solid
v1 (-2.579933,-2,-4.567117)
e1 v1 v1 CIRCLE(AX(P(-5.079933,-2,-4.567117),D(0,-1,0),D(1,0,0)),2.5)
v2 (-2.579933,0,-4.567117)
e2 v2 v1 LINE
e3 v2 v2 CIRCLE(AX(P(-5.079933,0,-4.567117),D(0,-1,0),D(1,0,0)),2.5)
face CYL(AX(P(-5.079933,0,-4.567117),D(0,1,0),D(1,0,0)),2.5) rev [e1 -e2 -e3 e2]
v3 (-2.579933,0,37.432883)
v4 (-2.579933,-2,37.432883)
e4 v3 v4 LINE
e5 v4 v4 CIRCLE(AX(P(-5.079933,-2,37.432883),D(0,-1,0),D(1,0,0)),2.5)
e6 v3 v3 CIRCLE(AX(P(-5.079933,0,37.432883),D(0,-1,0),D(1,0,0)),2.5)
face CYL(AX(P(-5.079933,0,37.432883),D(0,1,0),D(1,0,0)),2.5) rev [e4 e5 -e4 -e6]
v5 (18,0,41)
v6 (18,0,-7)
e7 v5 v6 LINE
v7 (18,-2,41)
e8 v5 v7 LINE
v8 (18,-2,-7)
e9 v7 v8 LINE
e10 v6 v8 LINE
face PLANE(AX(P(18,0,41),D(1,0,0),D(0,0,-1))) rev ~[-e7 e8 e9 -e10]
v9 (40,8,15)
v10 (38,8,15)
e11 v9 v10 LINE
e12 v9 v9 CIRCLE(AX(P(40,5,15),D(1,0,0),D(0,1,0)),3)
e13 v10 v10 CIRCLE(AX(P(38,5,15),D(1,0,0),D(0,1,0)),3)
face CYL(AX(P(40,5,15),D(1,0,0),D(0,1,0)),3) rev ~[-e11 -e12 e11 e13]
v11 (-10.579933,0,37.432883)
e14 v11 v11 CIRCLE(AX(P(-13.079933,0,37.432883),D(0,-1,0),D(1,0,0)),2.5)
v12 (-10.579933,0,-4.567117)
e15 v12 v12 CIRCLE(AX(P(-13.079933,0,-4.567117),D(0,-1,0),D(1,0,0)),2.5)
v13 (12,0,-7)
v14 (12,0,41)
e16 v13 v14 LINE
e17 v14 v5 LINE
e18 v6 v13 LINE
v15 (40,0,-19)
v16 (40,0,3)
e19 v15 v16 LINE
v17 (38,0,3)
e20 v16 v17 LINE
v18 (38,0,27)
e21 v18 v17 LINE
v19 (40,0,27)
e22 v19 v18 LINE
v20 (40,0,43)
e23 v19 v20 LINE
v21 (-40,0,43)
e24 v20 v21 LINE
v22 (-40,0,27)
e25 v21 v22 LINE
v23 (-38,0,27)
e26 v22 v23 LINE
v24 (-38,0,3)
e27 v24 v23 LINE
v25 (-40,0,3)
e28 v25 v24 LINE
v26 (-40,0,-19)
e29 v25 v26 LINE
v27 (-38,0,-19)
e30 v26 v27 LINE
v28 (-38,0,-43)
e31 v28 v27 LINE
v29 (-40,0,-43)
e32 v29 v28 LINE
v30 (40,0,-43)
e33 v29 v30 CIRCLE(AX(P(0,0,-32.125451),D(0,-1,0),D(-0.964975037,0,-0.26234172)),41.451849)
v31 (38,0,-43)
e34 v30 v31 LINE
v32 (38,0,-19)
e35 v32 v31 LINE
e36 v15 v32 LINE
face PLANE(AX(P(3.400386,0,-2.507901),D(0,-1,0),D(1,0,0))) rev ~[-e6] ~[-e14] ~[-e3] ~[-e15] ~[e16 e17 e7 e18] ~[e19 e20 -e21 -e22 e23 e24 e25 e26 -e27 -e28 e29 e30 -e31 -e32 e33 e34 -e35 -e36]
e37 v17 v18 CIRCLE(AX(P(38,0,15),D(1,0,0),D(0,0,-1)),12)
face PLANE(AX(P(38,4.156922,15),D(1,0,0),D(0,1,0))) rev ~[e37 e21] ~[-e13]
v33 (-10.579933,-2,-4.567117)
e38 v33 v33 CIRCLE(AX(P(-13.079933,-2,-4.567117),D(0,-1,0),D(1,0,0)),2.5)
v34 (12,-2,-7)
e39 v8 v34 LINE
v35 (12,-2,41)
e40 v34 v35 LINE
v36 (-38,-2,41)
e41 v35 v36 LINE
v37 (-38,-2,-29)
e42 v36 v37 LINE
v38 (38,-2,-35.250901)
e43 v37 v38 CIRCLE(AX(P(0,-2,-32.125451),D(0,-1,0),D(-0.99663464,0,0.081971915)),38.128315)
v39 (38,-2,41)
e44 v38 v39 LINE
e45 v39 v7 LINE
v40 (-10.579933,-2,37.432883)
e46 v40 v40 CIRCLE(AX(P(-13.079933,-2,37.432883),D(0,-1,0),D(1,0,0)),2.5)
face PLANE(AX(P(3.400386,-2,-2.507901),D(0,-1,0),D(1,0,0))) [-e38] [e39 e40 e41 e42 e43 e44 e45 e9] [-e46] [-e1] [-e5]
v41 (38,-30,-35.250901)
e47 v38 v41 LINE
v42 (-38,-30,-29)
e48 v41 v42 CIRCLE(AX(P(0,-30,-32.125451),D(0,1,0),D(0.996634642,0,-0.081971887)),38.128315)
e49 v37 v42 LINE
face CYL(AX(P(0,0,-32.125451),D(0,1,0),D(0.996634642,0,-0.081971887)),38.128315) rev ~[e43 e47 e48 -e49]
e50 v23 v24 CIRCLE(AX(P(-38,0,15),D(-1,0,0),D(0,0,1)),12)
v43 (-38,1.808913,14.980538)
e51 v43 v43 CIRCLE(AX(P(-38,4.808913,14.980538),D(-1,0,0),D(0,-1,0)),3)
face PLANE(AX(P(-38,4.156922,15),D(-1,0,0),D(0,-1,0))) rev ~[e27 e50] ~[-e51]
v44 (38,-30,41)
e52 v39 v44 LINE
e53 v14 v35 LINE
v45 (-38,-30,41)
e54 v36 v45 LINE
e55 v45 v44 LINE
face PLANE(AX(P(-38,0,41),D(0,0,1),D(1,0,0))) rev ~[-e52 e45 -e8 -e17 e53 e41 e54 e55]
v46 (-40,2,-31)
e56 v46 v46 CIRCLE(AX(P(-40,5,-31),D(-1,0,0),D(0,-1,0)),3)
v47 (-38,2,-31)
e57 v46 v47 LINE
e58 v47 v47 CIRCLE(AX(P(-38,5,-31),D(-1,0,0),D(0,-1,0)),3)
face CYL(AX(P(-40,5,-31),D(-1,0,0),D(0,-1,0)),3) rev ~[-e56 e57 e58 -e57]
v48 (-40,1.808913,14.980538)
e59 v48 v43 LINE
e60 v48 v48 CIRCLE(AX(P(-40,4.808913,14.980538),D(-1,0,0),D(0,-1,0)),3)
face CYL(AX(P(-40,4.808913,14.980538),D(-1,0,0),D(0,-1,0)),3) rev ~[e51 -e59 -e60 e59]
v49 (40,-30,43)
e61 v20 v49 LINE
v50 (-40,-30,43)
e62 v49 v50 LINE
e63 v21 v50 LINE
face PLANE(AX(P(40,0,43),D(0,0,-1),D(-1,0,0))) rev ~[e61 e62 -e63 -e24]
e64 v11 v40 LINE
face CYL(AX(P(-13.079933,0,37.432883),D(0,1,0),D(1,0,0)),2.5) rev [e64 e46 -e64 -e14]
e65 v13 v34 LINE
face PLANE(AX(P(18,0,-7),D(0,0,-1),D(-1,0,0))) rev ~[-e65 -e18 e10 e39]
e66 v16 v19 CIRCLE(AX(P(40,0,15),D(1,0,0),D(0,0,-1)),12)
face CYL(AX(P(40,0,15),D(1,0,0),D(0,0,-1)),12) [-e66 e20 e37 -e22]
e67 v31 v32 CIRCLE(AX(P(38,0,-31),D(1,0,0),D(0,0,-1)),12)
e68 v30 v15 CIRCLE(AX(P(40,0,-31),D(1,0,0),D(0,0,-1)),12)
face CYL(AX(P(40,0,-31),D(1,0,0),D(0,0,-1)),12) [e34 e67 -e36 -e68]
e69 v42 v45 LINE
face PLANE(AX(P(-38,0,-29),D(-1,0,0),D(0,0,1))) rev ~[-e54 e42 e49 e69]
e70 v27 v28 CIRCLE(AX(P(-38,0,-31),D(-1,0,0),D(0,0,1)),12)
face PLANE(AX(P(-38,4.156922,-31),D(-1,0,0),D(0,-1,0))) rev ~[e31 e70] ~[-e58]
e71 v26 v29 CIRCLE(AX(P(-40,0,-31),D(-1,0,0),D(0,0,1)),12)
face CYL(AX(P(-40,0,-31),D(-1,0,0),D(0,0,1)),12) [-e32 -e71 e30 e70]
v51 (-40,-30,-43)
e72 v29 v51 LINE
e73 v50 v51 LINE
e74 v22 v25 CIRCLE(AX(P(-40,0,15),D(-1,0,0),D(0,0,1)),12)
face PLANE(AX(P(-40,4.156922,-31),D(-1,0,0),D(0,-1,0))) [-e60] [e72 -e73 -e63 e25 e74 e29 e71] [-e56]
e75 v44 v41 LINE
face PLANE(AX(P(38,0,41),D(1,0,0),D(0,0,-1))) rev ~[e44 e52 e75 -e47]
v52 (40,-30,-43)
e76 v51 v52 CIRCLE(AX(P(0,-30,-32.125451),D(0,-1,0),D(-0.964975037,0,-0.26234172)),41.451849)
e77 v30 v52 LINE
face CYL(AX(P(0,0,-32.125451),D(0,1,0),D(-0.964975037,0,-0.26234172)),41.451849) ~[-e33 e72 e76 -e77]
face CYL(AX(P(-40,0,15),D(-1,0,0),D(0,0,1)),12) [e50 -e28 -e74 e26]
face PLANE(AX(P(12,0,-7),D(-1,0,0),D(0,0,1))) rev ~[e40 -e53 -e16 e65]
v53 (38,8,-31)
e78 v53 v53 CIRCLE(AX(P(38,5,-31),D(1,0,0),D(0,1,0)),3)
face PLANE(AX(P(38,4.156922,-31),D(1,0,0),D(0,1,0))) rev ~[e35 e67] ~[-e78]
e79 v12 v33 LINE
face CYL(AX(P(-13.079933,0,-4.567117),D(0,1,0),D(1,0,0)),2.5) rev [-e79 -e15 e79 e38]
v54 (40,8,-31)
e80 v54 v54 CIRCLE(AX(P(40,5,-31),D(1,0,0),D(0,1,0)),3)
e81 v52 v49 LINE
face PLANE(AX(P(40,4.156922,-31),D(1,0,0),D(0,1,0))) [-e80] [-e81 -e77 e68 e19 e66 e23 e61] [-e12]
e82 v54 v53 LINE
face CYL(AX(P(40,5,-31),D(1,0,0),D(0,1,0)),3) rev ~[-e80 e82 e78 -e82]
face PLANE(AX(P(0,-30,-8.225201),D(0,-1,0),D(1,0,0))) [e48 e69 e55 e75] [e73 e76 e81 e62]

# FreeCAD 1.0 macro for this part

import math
import FreeCAD as App
import Part
import Sketcher
from FreeCAD import Vector
Q = App.Units.Quantity

doc = App.newDocument("Part")
body = doc.addObject("PartDesign::Body", "Body")

# Sketch on XZ plane
sketch1 = body.newObject("Sketcher::SketchObject", "Sketch")
sketch1.AttachmentSupport = (doc.getObject("XZ_Plane"), [""])
sketch1.MapMode = "FlatFace"
sketch1.addGeometry(Part.LineSegment(Vector(40, -43, 0), Vector(40, 43, 0)), False)
sketch1.addGeometry(Part.LineSegment(Vector(40, 43, 0), Vector(-40, 43, 0)), False)
sketch1.addGeometry(Part.LineSegment(Vector(-40, 43, 0), Vector(-40, -43, 0)), False)
sketch1.addGeometry(Part.ArcOfCircle(Part.Circle(Vector(0, -32.125451, 0), Vector(0, 0, 1), 41.451849), math.radians(-164.790943), math.radians(-15.209057)), False)
sketch1.addGeometry(Part.ArcOfCircle(Part.Circle(Vector(0, -32.125451, 0), Vector(0, 0, 1), 38.128315), math.radians(175.298079), math.radians(355.298081)), False)
sketch1.addGeometry(Part.LineSegment(Vector(-38, -29, 0), Vector(-38, 41, 0)), False)
sketch1.addGeometry(Part.LineSegment(Vector(-38, 41, 0), Vector(38, 41, 0)), False)
sketch1.addGeometry(Part.LineSegment(Vector(38, 41, 0), Vector(38, -35.250901, 0)), False)
sketch1.addConstraint(Sketcher.Constraint("Coincident", 0, 2, 1, 1))
sketch1.addConstraint(Sketcher.Constraint("Coincident", 1, 2, 2, 1))
sketch1.addConstraint(Sketcher.Constraint("Coincident", 2, 2, 3, 1))
sketch1.addConstraint(Sketcher.Constraint("Coincident", 3, 2, 0, 1))
sketch1.addConstraint(Sketcher.Constraint("Coincident", 4, 1, 5, 1))
sketch1.addConstraint(Sketcher.Constraint("Coincident", 5, 2, 6, 1))
sketch1.addConstraint(Sketcher.Constraint("Coincident", 6, 2, 7, 1))
sketch1.addConstraint(Sketcher.Constraint("Coincident", 7, 2, 4, 2))
sketch1.addConstraint(Sketcher.Constraint("Vertical", 0))
sketch1.addConstraint(Sketcher.Constraint("Horizontal", 1))
sketch1.addConstraint(Sketcher.Constraint("Vertical", 2))
sketch1.addConstraint(Sketcher.Constraint("Vertical", 5))
sketch1.addConstraint(Sketcher.Constraint("Horizontal", 6))
sketch1.addConstraint(Sketcher.Constraint("Vertical", 7))
sketch1.addConstraint(Sketcher.Constraint("Coincident", 4, 3, 3, 3))
sketch1.addConstraint(Sketcher.Constraint("Symmetric", 0, 2, 2, 2, -1, 1))
sketch1.addConstraint(Sketcher.Constraint("PointOnObject", 3, 3, -2))
sketch1.addConstraint(Sketcher.Constraint("DistanceX", 1, 2, 1, 1, Q("80 mm")))
sketch1.addConstraint(Sketcher.Constraint("DistanceX", 6, 1, 6, 2, Q("76 mm")))
sketch1.addConstraint(Sketcher.Constraint("DistanceY", 0, 1, 0, 2, Q("86 mm")))
sketch1.addConstraint(Sketcher.Constraint("DistanceY", 5, 1, 5, 2, Q("70 mm")))
sketch1.addConstraint(Sketcher.Constraint("DistanceX", 4, 1, -1, 1, Q("38 mm")))
sketch1.addConstraint(Sketcher.Constraint("DistanceY", 4, 1, -1, 1, Q("29 mm")))
sketch1.addConstraint(Sketcher.Constraint("Radius", 3, Q("41.451849 mm")))
pad1 = body.newObject("PartDesign::Pad", "Pad")
pad1.Profile = sketch1
pad1.Length = 30

# Sketch on XZ plane
sketch2 = body.newObject("Sketcher::SketchObject", "Sketch001")
sketch2.AttachmentSupport = (doc.getObject("XZ_Plane"), [""])
sketch2.MapMode = "FlatFace"
sketch2.addGeometry(Part.LineSegment(Vector(12, 41, 0), Vector(-38, 41, 0)), False)
sketch2.addGeometry(Part.LineSegment(Vector(-38, 41, 0), Vector(-38, -29, 0)), False)
sketch2.addGeometry(Part.ArcOfCircle(Part.Circle(Vector(0, -32.125451, 0), Vector(0, 0, 1), 38.128315), math.radians(175.298079), math.radians(355.298081)), False)
sketch2.addGeometry(Part.LineSegment(Vector(38, -35.250901, 0), Vector(38, 41, 0)), False)
sketch2.addGeometry(Part.LineSegment(Vector(38, 41, 0), Vector(18, 41, 0)), False)
sketch2.addGeometry(Part.LineSegment(Vector(18, 41, 0), Vector(18, -7, 0)), False)
sketch2.addGeometry(Part.LineSegment(Vector(18, -7, 0), Vector(12, -7, 0)), False)
sketch2.addGeometry(Part.LineSegment(Vector(12, -7, 0), Vector(12, 41, 0)), False)
sketch2.addGeometry(Part.Circle(Vector(-13.079933, -4.567117, 0), Vector(0, 0, 1), 2.5), False)
sketch2.addGeometry(Part.Circle(Vector(-5.079933, -4.567117, 0), Vector(0, 0, 1), 2.5), False)
sketch2.addGeometry(Part.Circle(Vector(-13.079933, 37.432883, 0), Vector(0, 0, 1), 2.5), False)
sketch2.addGeometry(Part.Circle(Vector(-5.079933, 37.432883, 0), Vector(0, 0, 1), 2.5), False)
sketch2.addConstraint(Sketcher.Constraint("Coincident", 0, 2, 1, 1))
sketch2.addConstraint(Sketcher.Constraint("Coincident", 1, 2, 2, 1))
sketch2.addConstraint(Sketcher.Constraint("Coincident", 2, 2, 3, 1))
sketch2.addConstraint(Sketcher.Constraint("Coincident", 3, 2, 4, 1))
sketch2.addConstraint(Sketcher.Constraint("Coincident", 4, 2, 5, 1))
sketch2.addConstraint(Sketcher.Constraint("Coincident", 5, 2, 6, 1))
sketch2.addConstraint(Sketcher.Constraint("Coincident", 6, 2, 7, 1))
sketch2.addConstraint(Sketcher.Constraint("Coincident", 7, 2, 0, 1))
sketch2.addConstraint(Sketcher.Constraint("Horizontal", 0))
sketch2.addConstraint(Sketcher.Constraint("Vertical", 1))
sketch2.addConstraint(Sketcher.Constraint("Vertical", 3))
sketch2.addConstraint(Sketcher.Constraint("Horizontal", 4))
sketch2.addConstraint(Sketcher.Constraint("Vertical", 5))
sketch2.addConstraint(Sketcher.Constraint("Horizontal", 6))
sketch2.addConstraint(Sketcher.Constraint("Vertical", 7))
sketch2.addConstraint(Sketcher.Constraint("Equal", 8, 9))
sketch2.addConstraint(Sketcher.Constraint("Equal", 9, 10))
sketch2.addConstraint(Sketcher.Constraint("Equal", 10, 11))
sketch2.addConstraint(Sketcher.Constraint("Symmetric", 0, 2, 3, 2, -2))
sketch2.addConstraint(Sketcher.Constraint("PointOnObject", 2, 3, -2))
sketch2.addConstraint(Sketcher.Constraint("Horizontal", 8, 3, 9, 3))
sketch2.addConstraint(Sketcher.Constraint("Horizontal", 10, 3, 11, 3))
sketch2.addConstraint(Sketcher.Constraint("Vertical", 8, 3, 10, 3))
sketch2.addConstraint(Sketcher.Constraint("Vertical", 9, 3, 11, 3))
sketch2.addConstraint(Sketcher.Constraint("Diameter", 8, Q("5 mm")))
sketch2.addConstraint(Sketcher.Constraint("DistanceX", 0, 2, 0, 1, Q("50 mm")))
sketch2.addConstraint(Sketcher.Constraint("DistanceX", 4, 2, 4, 1, Q("20 mm")))
sketch2.addConstraint(Sketcher.Constraint("DistanceX", 6, 2, 6, 1, Q("6 mm")))
sketch2.addConstraint(Sketcher.Constraint("DistanceY", 1, 2, 1, 1, Q("70 mm")))
sketch2.addConstraint(Sketcher.Constraint("DistanceY", 5, 2, 5, 1, Q("48 mm")))
sketch2.addConstraint(Sketcher.Constraint("DistanceY", -1, 1, 0, 2, Q("41 mm")))
sketch2.addConstraint(Sketcher.Constraint("DistanceX", 8, 3, 9, 3, Q("8 mm")))
sketch2.addConstraint(Sketcher.Constraint("DistanceY", 8, 3, 10, 3, Q("42 mm")))
sketch2.addConstraint(Sketcher.Constraint("DistanceY", 3, 1, 3, 2, Q("76.250901 mm")))
sketch2.addConstraint(Sketcher.Constraint("DistanceX", 8, 3, -1, 1, Q("13.079933 mm")))
sketch2.addConstraint(Sketcher.Constraint("DistanceY", 8, 3, -1, 1, Q("4.567117 mm")))
pad2 = body.newObject("PartDesign::Pad", "Pad001")
pad2.Profile = sketch2
pad2.Length = 2

# Sketch on YZ plane
sketch3 = body.newObject("Sketcher::SketchObject", "Sketch002")
sketch3.AttachmentSupport = (doc.getObject("YZ_Plane"), [""])
sketch3.MapMode = "FlatFace"
sketch3.AttachmentOffset = App.Placement(Vector(0, 0, 40), App.Rotation())
sketch3.addGeometry(Part.LineSegment(Vector(0, 27, 0), Vector(0, 3, 0)), False)
sketch3.addGeometry(Part.ArcOfCircle(Part.Circle(Vector(0, 15, 0), Vector(0, 0, 1), 12), math.radians(-90), math.radians(90)), False)
sketch3.addGeometry(Part.Circle(Vector(5, 15, 0), Vector(0, 0, 1), 3), False)
sketch3.addGeometry(Part.LineSegment(Vector(0, -19, 0), Vector(0, -43, 0)), False)
sketch3.addGeometry(Part.ArcOfCircle(Part.Circle(Vector(0, -31, 0), Vector(0, 0, 1), 12), math.radians(-90), math.radians(90)), False)
sketch3.addGeometry(Part.Circle(Vector(5, -31, 0), Vector(0, 0, 1), 3), False)
sketch3.addConstraint(Sketcher.Constraint("Coincident", 0, 1, 1, 2))
sketch3.addConstraint(Sketcher.Constraint("Coincident", 1, 1, 0, 2))
sketch3.addConstraint(Sketcher.Constraint("Coincident", 3, 1, 4, 2))
sketch3.addConstraint(Sketcher.Constraint("Coincident", 4, 1, 3, 2))
sketch3.addConstraint(Sketcher.Constraint("Vertical", 0))
sketch3.addConstraint(Sketcher.Constraint("Vertical", 3))
sketch3.addConstraint(Sketcher.Constraint("Equal", 1, 4))
sketch3.addConstraint(Sketcher.Constraint("Equal", 2, 5))
sketch3.addConstraint(Sketcher.Constraint("PointOnObject", 1, 3, -2))
sketch3.addConstraint(Sketcher.Constraint("PointOnObject", 4, 3, -2))
sketch3.addConstraint(Sketcher.Constraint("PointOnObject", 0, 1, -2))
sketch3.addConstraint(Sketcher.Constraint("PointOnObject", 3, 1, -2))
sketch3.addConstraint(Sketcher.Constraint("Horizontal", 1, 3, 2, 3))
sketch3.addConstraint(Sketcher.Constraint("Horizontal", 4, 3, 5, 3))
sketch3.addConstraint(Sketcher.Constraint("Vertical", 2, 3, 5, 3))
sketch3.addConstraint(Sketcher.Constraint("Diameter", 2, Q("6 mm")))
sketch3.addConstraint(Sketcher.Constraint("Radius", 1, Q("12 mm")))
sketch3.addConstraint(Sketcher.Constraint("DistanceY", -1, 1, 1, 3, Q("15 mm")))
sketch3.addConstraint(Sketcher.Constraint("DistanceX", -1, 1, 2, 3, Q("5 mm")))
sketch3.addConstraint(Sketcher.Constraint("DistanceY", 4, 3, -1, 1, Q("31 mm")))
pad3 = body.newObject("PartDesign::Pad", "Pad002")
pad3.Profile = sketch3
pad3.Length = 2
pad3.Reversed = True

# Sketch on YZ plane
sketch4 = body.newObject("Sketcher::SketchObject", "Sketch003")
sketch4.AttachmentSupport = (doc.getObject("YZ_Plane"), [""])
sketch4.MapMode = "FlatFace"
sketch4.AttachmentOffset = App.Placement(Vector(0, 0, -40), App.Rotation())
sketch4.addGeometry(Part.LineSegment(Vector(0, -43, 0), Vector(0, -19, 0)), False)
sketch4.addGeometry(Part.ArcOfCircle(Part.Circle(Vector(0, -31, 0), Vector(0, 0, 1), 12), math.radians(-90), math.radians(90)), False)
sketch4.addGeometry(Part.Circle(Vector(5, -31, 0), Vector(0, 0, 1), 3), False)
sketch4.addGeometry(Part.LineSegment(Vector(0, 3, 0), Vector(0, 27, 0)), False)
sketch4.addGeometry(Part.ArcOfCircle(Part.Circle(Vector(0, 15, 0), Vector(0, 0, 1), 12), math.radians(-90), math.radians(90)), False)
sketch4.addGeometry(Part.Circle(Vector(4.808913, 14.980538, 0), Vector(0, 0, 1), 3), False)
sketch4.addConstraint(Sketcher.Constraint("Coincident", 0, 1, 1, 1))
sketch4.addConstraint(Sketcher.Constraint("Coincident", 1, 2, 0, 2))
sketch4.addConstraint(Sketcher.Constraint("Coincident", 3, 1, 4, 1))
sketch4.addConstraint(Sketcher.Constraint("Coincident", 4, 2, 3, 2))
sketch4.addConstraint(Sketcher.Constraint("Vertical", 0))
sketch4.addConstraint(Sketcher.Constraint("Vertical", 3))
sketch4.addConstraint(Sketcher.Constraint("Equal", 1, 4))
sketch4.addConstraint(Sketcher.Constraint("Equal", 2, 5))
sketch4.addConstraint(Sketcher.Constraint("PointOnObject", 1, 3, -2))
sketch4.addConstraint(Sketcher.Constraint("PointOnObject", 4, 3, -2))
sketch4.addConstraint(Sketcher.Constraint("PointOnObject", 0, 1, -2))
sketch4.addConstraint(Sketcher.Constraint("PointOnObject", 3, 1, -2))
sketch4.addConstraint(Sketcher.Constraint("Horizontal", 1, 3, 2, 3))
sketch4.addConstraint(Sketcher.Constraint("Diameter", 2, Q("6 mm")))
sketch4.addConstraint(Sketcher.Constraint("Radius", 1, Q("12 mm")))
sketch4.addConstraint(Sketcher.Constraint("DistanceY", 1, 3, -1, 1, Q("31 mm")))
sketch4.addConstraint(Sketcher.Constraint("DistanceX", -1, 1, 2, 3, Q("5 mm")))
sketch4.addConstraint(Sketcher.Constraint("DistanceY", -1, 1, 4, 3, Q("15 mm")))
sketch4.addConstraint(Sketcher.Constraint("DistanceX", -1, 1, 5, 3, Q("4.808913 mm")))
sketch4.addConstraint(Sketcher.Constraint("DistanceY", -1, 1, 5, 3, Q("14.980538 mm")))
pad4 = body.newObject("PartDesign::Pad", "Pad003")
pad4.Profile = sketch4
pad4.Length = 2

doc.recompute()
